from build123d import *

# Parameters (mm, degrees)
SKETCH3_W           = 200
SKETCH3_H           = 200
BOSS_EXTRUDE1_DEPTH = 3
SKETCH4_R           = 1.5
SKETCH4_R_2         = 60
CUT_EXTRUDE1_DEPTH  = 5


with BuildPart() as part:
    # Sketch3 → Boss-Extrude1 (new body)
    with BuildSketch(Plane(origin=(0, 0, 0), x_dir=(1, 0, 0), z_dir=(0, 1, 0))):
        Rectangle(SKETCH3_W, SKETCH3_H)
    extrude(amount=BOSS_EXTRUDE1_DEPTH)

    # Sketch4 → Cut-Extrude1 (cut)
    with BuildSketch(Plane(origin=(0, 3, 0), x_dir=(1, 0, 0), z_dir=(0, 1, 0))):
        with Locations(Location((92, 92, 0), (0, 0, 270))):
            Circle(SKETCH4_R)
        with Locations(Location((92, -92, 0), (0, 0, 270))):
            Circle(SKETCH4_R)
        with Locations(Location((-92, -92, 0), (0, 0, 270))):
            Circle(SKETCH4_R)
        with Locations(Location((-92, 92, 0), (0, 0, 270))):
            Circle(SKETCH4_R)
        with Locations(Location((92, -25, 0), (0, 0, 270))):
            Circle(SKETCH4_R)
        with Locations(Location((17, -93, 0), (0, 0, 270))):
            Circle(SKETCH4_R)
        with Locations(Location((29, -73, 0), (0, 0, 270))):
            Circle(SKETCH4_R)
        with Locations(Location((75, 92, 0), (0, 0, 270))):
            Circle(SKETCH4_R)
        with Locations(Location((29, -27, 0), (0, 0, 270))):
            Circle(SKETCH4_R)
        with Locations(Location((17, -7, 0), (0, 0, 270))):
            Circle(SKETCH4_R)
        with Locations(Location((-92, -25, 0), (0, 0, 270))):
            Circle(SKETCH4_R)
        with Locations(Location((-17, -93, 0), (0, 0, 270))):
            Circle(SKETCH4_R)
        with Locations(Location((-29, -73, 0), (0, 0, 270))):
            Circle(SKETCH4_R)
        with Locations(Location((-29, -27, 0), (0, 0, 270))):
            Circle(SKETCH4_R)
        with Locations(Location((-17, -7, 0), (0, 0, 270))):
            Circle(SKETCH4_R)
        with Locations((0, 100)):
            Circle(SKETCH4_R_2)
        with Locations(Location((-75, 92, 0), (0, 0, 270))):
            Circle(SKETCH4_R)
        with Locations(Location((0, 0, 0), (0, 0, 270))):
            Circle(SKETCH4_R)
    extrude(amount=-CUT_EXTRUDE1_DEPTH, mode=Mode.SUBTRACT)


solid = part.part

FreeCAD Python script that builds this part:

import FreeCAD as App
import Part
import Sketcher
from FreeCAD import Vector

doc = App.newDocument("Part")
body = doc.addObject("PartDesign::Body", "Body")

sketch1 = body.newObject("Sketcher::SketchObject", "Sketch")
sketch1.AttachmentSupport = (doc.getObject("XZ_Plane"), [""])
sketch1.MapMode = "FlatFace"
sketch1.addGeometry(Part.LineSegment(Vector(-100, -100, 0), Vector(-100, 100, 0)), False)
sketch1.addGeometry(Part.LineSegment(Vector(-100, 100, 0), Vector(100, 100, 0)), False)
sketch1.addGeometry(Part.LineSegment(Vector(100, 100, 0), Vector(100, -100, 0)), False)
sketch1.addGeometry(Part.LineSegment(Vector(100, -100, 0), Vector(-100, -100, 0)), False)
sketch1.addConstraint(Sketcher.Constraint("Coincident", 0, 2, 1, 1))
sketch1.addConstraint(Sketcher.Constraint("Coincident", 1, 2, 2, 1))
sketch1.addConstraint(Sketcher.Constraint("Coincident", 2, 2, 3, 1))
sketch1.addConstraint(Sketcher.Constraint("Coincident", 3, 2, 0, 1))
sketch1.addConstraint(Sketcher.Constraint("Vertical", 0))
sketch1.addConstraint(Sketcher.Constraint("Horizontal", 1))
sketch1.addConstraint(Sketcher.Constraint("Vertical", 2))
sketch1.addConstraint(Sketcher.Constraint("Horizontal", 3))
sketch1.addConstraint(Sketcher.Constraint("Symmetric", 0, 2, 2, 2, -1, 1))
sketch1.addConstraint(Sketcher.Constraint("Equal", 3, 0))
sketch1.addConstraint(Sketcher.Constraint("DistanceX", 1, 1, 1, 2, 200.0))
pad1 = body.newObject("PartDesign::Pad", "Pad")
pad1.Profile = sketch1
pad1.Length = 3
pad1.Reversed = True

sketch2 = body.newObject("Sketcher::SketchObject", "Sketch001")
sketch2.AttachmentSupport = (doc.getObject("XZ_Plane"), [""])
sketch2.MapMode = "FlatFace"
sketch2.AttachmentOffset = App.Placement(Vector(0, 0, -3), App.Rotation())
sketch2.addGeometry(Part.Circle(Vector(92, -92, 0), Vector(0, 0, 1), 1.5), False)
sketch2.addGeometry(Part.Circle(Vector(92, 92, 0), Vector(0, 0, 1), 1.5), False)
sketch2.addGeometry(Part.Circle(Vector(-92, 92, 0), Vector(0, 0, 1), 1.5), False)
sketch2.addGeometry(Part.Circle(Vector(-92, -92, 0), Vector(0, 0, 1), 1.5), False)
sketch2.addGeometry(Part.Circle(Vector(92, 25, 0), Vector(0, 0, 1), 1.5), False)
sketch2.addGeometry(Part.Circle(Vector(17, 93, 0), Vector(0, 0, 1), 1.5), False)
sketch2.addGeometry(Part.Circle(Vector(29, 73, 0), Vector(0, 0, 1), 1.5), False)
sketch2.addGeometry(Part.Circle(Vector(75, -92, 0), Vector(0, 0, 1), 1.5), False)
sketch2.addGeometry(Part.Circle(Vector(29, 27, 0), Vector(0, 0, 1), 1.5), False)
sketch2.addGeometry(Part.Circle(Vector(17, 7, 0), Vector(0, 0, 1), 1.5), False)
sketch2.addGeometry(Part.Circle(Vector(-92, 25, 0), Vector(0, 0, 1), 1.5), False)
sketch2.addGeometry(Part.Circle(Vector(-17, 93, 0), Vector(0, 0, 1), 1.5), False)
sketch2.addGeometry(Part.Circle(Vector(-29, 73, 0), Vector(0, 0, 1), 1.5), False)
sketch2.addGeometry(Part.Circle(Vector(-29, 27, 0), Vector(0, 0, 1), 1.5), False)
sketch2.addGeometry(Part.Circle(Vector(-17, 7, 0), Vector(0, 0, 1), 1.5), False)
sketch2.addGeometry(Part.Circle(Vector(0, -100, 0), Vector(0, 0, 1), 60), False)
sketch2.addGeometry(Part.Circle(Vector(-75, -92, 0), Vector(0, 0, 1), 1.5), False)
sketch2.addGeometry(Part.Circle(Vector(0, 0, 0), Vector(0, 0, 1), 1.5), False)
sketch2.addConstraint(Sketcher.Constraint("Coincident", 17, 3, -1, 1))
sketch2.addConstraint(Sketcher.Constraint("Equal", 0, 1))
sketch2.addConstraint(Sketcher.Constraint("Equal", 1, 2))
sketch2.addConstraint(Sketcher.Constraint("Equal", 2, 3))
sketch2.addConstraint(Sketcher.Constraint("Equal", 3, 4))
sketch2.addConstraint(Sketcher.Constraint("Equal", 4, 5))
sketch2.addConstraint(Sketcher.Constraint("Equal", 5, 6))
sketch2.addConstraint(Sketcher.Constraint("Equal", 6, 7))
sketch2.addConstraint(Sketcher.Constraint("Equal", 7, 8))
sketch2.addConstraint(Sketcher.Constraint("Equal", 8, 9))
sketch2.addConstraint(Sketcher.Constraint("Equal", 9, 10))
sketch2.addConstraint(Sketcher.Constraint("Equal", 10, 11))
sketch2.addConstraint(Sketcher.Constraint("Equal", 11, 12))
sketch2.addConstraint(Sketcher.Constraint("Equal", 12, 13))
sketch2.addConstraint(Sketcher.Constraint("Equal", 13, 14))
sketch2.addConstraint(Sketcher.Constraint("Equal", 14, 16))
sketch2.addConstraint(Sketcher.Constraint("Equal", 16, 17))
sketch2.addConstraint(Sketcher.Constraint("Symmetric", 0, 3, 2, 3, -1, 1))
sketch2.addConstraint(Sketcher.Constraint("Symmetric", 1, 3, 3, 3, -1, 1))
sketch2.addConstraint(Sketcher.Constraint("Symmetric", 1, 3, 2, 3, -2))
sketch2.addConstraint(Sketcher.Constraint("Symmetric", 4, 3, 10, 3, -2))
sketch2.addConstraint(Sketcher.Constraint("Symmetric", 5, 3, 11, 3, -2))
sketch2.addConstraint(Sketcher.Constraint("Symmetric", 6, 3, 12, 3, -2))
sketch2.addConstraint(Sketcher.Constraint("Symmetric", 8, 3, 13, 3, -2))
sketch2.addConstraint(Sketcher.Constraint("Symmetric", 9, 3, 14, 3, -2))
sketch2.addConstraint(Sketcher.Constraint("Symmetric", 7, 3, 16, 3, -2))
sketch2.addConstraint(Sketcher.Constraint("PointOnObject", 15, 3, -2))
sketch2.addConstraint(Sketcher.Constraint("Horizontal", 3, 3, 7, 3))
sketch2.addConstraint(Sketcher.Constraint("Vertical", 1, 3, 4, 3))
sketch2.addConstraint(Sketcher.Constraint("Vertical", 6, 3, 8, 3))
sketch2.addConstraint(Sketcher.Constraint("Vertical", 5, 3, 9, 3))
sketch2.addConstraint(Sketcher.Constraint("Diameter", 0, 3.0))
sketch2.addConstraint(Sketcher.Constraint("Diameter", 15, 120.0))
sketch2.addConstraint(Sketcher.Constraint("DistanceX", -1, 1, 0, 3, 92.0))
sketch2.addConstraint(Sketcher.Constraint("DistanceY", 0, 3, -1, 1, 92.0))
sketch2.addConstraint(Sketcher.Constraint("DistanceY", -1, 1, 4, 3, 25.0))
sketch2.addConstraint(Sketcher.Constraint("DistanceX", -1, 1, 5, 3, 17.0))
sketch2.addConstraint(Sketcher.Constraint("DistanceY", -1, 1, 5, 3, 93.0))
sketch2.addConstraint(Sketcher.Constraint("DistanceX", -1, 1, 6, 3, 29.0))
sketch2.addConstraint(Sketcher.Constraint("DistanceY", -1, 1, 6, 3, 73.0))
sketch2.addConstraint(Sketcher.Constraint("DistanceX", -1, 1, 7, 3, 75.0))
sketch2.addConstraint(Sketcher.Constraint("DistanceY", -1, 1, 8, 3, 27.0))
sketch2.addConstraint(Sketcher.Constraint("DistanceY", -1, 1, 9, 3, 7.0))
sketch2.addConstraint(Sketcher.Constraint("DistanceY", 15, 3, -1, 1, 100.0))
pocket1 = body.newObject("PartDesign::Pocket", "Pocket")
pocket1.Profile = sketch2
pocket1.Length = 5
pocket1.Reversed = True

doc.recompute()
